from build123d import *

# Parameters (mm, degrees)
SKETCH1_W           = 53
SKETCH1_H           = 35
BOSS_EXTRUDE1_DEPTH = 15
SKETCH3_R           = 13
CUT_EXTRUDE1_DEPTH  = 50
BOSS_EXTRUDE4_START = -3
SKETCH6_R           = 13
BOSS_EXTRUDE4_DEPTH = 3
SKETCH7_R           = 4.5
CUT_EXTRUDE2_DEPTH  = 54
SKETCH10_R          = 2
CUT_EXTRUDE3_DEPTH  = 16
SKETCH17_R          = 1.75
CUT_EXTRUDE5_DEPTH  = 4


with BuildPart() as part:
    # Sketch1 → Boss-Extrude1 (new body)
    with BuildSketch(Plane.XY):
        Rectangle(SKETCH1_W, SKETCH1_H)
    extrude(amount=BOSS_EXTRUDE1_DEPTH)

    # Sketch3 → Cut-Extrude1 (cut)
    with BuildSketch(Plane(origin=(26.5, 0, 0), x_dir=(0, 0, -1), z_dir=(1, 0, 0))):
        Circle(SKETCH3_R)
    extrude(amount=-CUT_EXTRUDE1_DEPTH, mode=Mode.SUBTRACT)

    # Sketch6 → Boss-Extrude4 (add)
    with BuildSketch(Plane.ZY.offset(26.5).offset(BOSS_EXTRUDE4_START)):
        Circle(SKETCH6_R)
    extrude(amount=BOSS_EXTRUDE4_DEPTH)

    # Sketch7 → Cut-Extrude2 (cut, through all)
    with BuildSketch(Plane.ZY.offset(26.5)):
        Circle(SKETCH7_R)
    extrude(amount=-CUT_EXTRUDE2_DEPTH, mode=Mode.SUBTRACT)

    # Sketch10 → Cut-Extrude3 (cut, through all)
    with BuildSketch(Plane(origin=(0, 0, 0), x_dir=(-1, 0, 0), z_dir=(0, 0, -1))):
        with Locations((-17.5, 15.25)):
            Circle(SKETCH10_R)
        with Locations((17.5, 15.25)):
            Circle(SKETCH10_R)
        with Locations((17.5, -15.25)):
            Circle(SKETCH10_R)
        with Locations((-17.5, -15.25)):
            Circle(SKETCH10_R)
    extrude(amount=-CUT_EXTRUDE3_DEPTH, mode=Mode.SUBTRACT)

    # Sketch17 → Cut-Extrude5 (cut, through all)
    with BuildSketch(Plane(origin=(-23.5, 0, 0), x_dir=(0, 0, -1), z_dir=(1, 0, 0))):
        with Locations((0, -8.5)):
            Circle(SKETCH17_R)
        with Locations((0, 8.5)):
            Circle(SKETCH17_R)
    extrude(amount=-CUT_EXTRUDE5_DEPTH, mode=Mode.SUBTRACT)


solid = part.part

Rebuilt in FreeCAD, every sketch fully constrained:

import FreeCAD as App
import Part
import Sketcher
from FreeCAD import Vector


def add_polygon(sketch, points):
    """Adds a closed chain of lines whose ends are joined by coincident constraints."""
    first, n = sketch.GeometryCount, len(points)
    for a, b in zip(points, points[1:] + points[:1]):
        sketch.addGeometry(Part.LineSegment(App.Vector(*a, 0), App.Vector(*b, 0)), False)
    for i in range(n):
        sketch.addConstraint(Sketcher.Constraint("Coincident", first + i, 2, first + (i + 1) % n, 1))

doc = App.newDocument("Part")
body = doc.addObject("PartDesign::Body", "Body")

# Sketch on XY plane
sketch1 = doc.addObject("Sketcher::SketchObject", "Sketch")
body.addObject(sketch1)
sketch1.AttachmentSupport = (doc.XY_Plane, [""])
sketch1.MapMode = "FlatFace"
add_polygon(sketch1, [(-26.5, 17.5), (-26.5, -17.5), (26.5, -17.5), (26.5, 17.5)])  # lines 0-3
sketch1.addConstraint([
    Sketcher.Constraint("Vertical", 0),
    Sketcher.Constraint("Horizontal", 1),
    Sketcher.Constraint("Vertical", 2),
    Sketcher.Constraint("Horizontal", 3),
    Sketcher.Constraint("Symmetric", 0, 2, 2, 2, -1, 1),
    Sketcher.Constraint("DistanceX", 1, 1, 1, 2, 53.0),
    Sketcher.Constraint("DistanceY", 0, 2, 0, 1, 35.0),
])
pad1 = doc.addObject("PartDesign::Pad", "Pad")
body.addObject(pad1)
pad1.Profile = sketch1
pad1.Length = 15

# Sketch on YZ plane
sketch2 = doc.addObject("Sketcher::SketchObject", "Sketch001")
body.addObject(sketch2)
sketch2.AttachmentSupport = (doc.YZ_Plane, [""])
sketch2.MapMode = "FlatFace"
sketch2.AttachmentOffset = App.Placement(Vector(0, 0, 26.5), App.Rotation())
sketch2.addGeometry(Part.Circle(Vector(0, 0, 0), Vector(0, 0, 1), 13), False)
sketch2.addConstraint([
    Sketcher.Constraint("Coincident", 0, 3, -1, 1),
    Sketcher.Constraint("Diameter", 0, 26.0),
])
pocket1 = doc.addObject("PartDesign::Pocket", "Pocket")
body.addObject(pocket1)
pocket1.Profile = sketch2
pocket1.Length = 50

# Sketch on YZ plane
sketch3 = doc.addObject("Sketcher::SketchObject", "Sketch002")
body.addObject(sketch3)
sketch3.AttachmentSupport = (doc.YZ_Plane, [""])
sketch3.MapMode = "FlatFace"
sketch3.AttachmentOffset = App.Placement(Vector(0, 0, -23.5), App.Rotation())
sketch3.addGeometry(Part.Circle(Vector(0, 0, 0), Vector(0, 0, 1), 13), False)
sketch3.addConstraint([
    Sketcher.Constraint("Coincident", 0, 3, -1, 1),
    Sketcher.Constraint("Diameter", 0, 26.0),
])
pad2 = doc.addObject("PartDesign::Pad", "Pad001")
body.addObject(pad2)
pad2.Profile = sketch3
pad2.Length = 3
pad2.Reversed = True

# Sketch on YZ plane
sketch4 = doc.addObject("Sketcher::SketchObject", "Sketch003")
body.addObject(sketch4)
sketch4.AttachmentSupport = (doc.YZ_Plane, [""])
sketch4.MapMode = "FlatFace"
sketch4.AttachmentOffset = App.Placement(Vector(0, 0, -26.5), App.Rotation())
sketch4.addGeometry(Part.Circle(Vector(0, 0, 0), Vector(0, 0, 1), 4.5), False)
sketch4.addConstraint([
    Sketcher.Constraint("Coincident", 0, 3, -1, 1),
    Sketcher.Constraint("Diameter", 0, 9.0),
])
pocket2 = doc.addObject("PartDesign::Pocket", "Pocket001")
body.addObject(pocket2)
pocket2.Profile = sketch4
pocket2.Type = "ThroughAll"
pocket2.Reversed = True

# Sketch on XY plane
sketch5 = doc.addObject("Sketcher::SketchObject", "Sketch004")
body.addObject(sketch5)
sketch5.AttachmentSupport = (doc.XY_Plane, [""])
sketch5.MapMode = "FlatFace"
sketch5.addGeometry([
    Part.Circle(Vector(17.5, 15.25, 0), Vector(0, 0, 1), 2),
    Part.Circle(Vector(-17.5, 15.25, 0), Vector(0, 0, 1), 2),
    Part.Circle(Vector(-17.5, -15.25, 0), Vector(0, 0, 1), 2),
    Part.Circle(Vector(17.5, -15.25, 0), Vector(0, 0, 1), 2),
], False)
sketch5.addConstraint([
    Sketcher.Constraint("Equal", 0, 1),
    Sketcher.Constraint("Equal", 1, 2),
    Sketcher.Constraint("Equal", 2, 3),
    Sketcher.Constraint("Symmetric", 0, 3, 2, 3, -1, 1),
    Sketcher.Constraint("Symmetric", 1, 3, 3, 3, -1, 1),
    Sketcher.Constraint("Symmetric", 0, 3, 1, 3, -2),
    Sketcher.Constraint("Diameter", 0, 4.0),
    Sketcher.Constraint("DistanceX", 1, 3, 0, 3, 35.0),
    Sketcher.Constraint("DistanceY", 2, 3, 1, 3, 30.5),
])
pocket3 = doc.addObject("PartDesign::Pocket", "Pocket002")
body.addObject(pocket3)
pocket3.Profile = sketch5
pocket3.Type = "ThroughAll"
pocket3.Reversed = True

# Sketch on YZ plane
sketch6 = doc.addObject("Sketcher::SketchObject", "Sketch005")
body.addObject(sketch6)
sketch6.AttachmentSupport = (doc.YZ_Plane, [""])
sketch6.MapMode = "FlatFace"
sketch6.AttachmentOffset = App.Placement(Vector(0, 0, -23.5), App.Rotation())
sketch6.addGeometry([
    Part.Circle(Vector(-8.5, 0, 0), Vector(0, 0, 1), 1.75),
    Part.Circle(Vector(8.5, 0, 0), Vector(0, 0, 1), 1.75),
], False)
sketch6.addConstraint([
    Sketcher.Constraint("Equal", 0, 1),
    Sketcher.Constraint("Symmetric", 0, 3, 1, 3, -1, 1),
    Sketcher.Constraint("PointOnObject", 0, 3, -1),
    Sketcher.Constraint("Diameter", 0, 3.5),
    Sketcher.Constraint("DistanceX", 0, 3, 1, 3, 17.0),
])
pocket4 = doc.addObject("PartDesign::Pocket", "Pocket003")
body.addObject(pocket4)
pocket4.Profile = sketch6
pocket4.Type = "ThroughAll"

doc.recompute()
